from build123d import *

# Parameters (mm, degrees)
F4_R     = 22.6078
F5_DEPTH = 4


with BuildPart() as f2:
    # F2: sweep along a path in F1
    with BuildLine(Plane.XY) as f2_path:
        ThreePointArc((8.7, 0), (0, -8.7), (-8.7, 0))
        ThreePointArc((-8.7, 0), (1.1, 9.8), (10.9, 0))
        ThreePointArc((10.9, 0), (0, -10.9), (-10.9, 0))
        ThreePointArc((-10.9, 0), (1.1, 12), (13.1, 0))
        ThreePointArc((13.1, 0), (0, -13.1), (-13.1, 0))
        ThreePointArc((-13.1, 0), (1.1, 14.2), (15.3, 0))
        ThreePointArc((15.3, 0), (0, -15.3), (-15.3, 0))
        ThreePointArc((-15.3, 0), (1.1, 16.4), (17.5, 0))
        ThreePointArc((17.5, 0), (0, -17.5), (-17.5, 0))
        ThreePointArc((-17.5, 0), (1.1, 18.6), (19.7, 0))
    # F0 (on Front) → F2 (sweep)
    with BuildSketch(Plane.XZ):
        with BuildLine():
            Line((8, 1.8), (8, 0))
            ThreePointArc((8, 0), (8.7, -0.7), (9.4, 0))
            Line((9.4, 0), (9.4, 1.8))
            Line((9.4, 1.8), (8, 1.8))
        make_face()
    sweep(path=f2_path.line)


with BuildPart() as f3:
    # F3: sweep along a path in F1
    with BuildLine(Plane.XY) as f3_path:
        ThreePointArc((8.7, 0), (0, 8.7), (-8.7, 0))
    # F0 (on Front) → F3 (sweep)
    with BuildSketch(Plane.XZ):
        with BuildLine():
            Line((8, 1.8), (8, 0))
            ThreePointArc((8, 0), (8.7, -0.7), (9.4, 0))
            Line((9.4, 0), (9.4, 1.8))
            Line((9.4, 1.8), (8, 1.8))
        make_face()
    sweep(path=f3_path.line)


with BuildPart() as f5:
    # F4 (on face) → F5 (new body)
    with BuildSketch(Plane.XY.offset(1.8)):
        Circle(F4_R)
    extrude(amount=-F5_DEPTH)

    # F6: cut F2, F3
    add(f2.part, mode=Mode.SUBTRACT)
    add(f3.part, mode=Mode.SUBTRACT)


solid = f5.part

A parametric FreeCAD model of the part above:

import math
import FreeCAD as App
import Part
import Sketcher

V = App.Vector
Q = App.Units.Quantity

doc = App.newDocument("Part")
params = doc.addObject("Spreadsheet::Sheet", "Params")
for row, (alias, value) in enumerate([
    ("sketch1_radius", "0.7 mm"),
    ("sketch1_height", "1.8 mm"),
    ("sketch2_radius", "12 mm"),
    ("sketch2_radius2", "8.7 mm"),
    ("sketch3_radius", "0.7 mm"),
    ("sketch3_height", "1.8 mm"),
    ("sketch4_radius", "8.7 mm"),
    ("pad1_length", "4 mm"),
], start=1):
    params.set(f"A{row}", alias)
    params.set(f"B{row}", "=" + value)
    params.setAlias(f"B{row}", alias)

body = doc.addObject("PartDesign::Body", "Body")

# Sketch on XZ plane
sketch1 = body.newObject("Sketcher::SketchObject", "Sketch")
sketch1.AttachmentSupport = (doc.getObject("XZ_Plane"), [""])
sketch1.MapMode = "FlatFace"
sketch1.addGeometry([
    Part.LineSegment(V(8, 1.8, 0), V(8, 0, 0)),
    Part.ArcOfCircle(Part.Circle(V(8.7, 0, 0), V(0, 0, 1), 0.7), math.radians(180), math.radians(360)),
    Part.LineSegment(V(9.4, 0, 0), V(9.4, 1.8, 0)),
    Part.LineSegment(V(9.4, 1.8, 0), V(8, 1.8, 0)),
], False)
sketch1.addConstraint([
    Sketcher.Constraint("Tangent", 0, 2, 1, 1),
    Sketcher.Constraint("Tangent", 1, 2, 2, 1),
    Sketcher.Constraint("Coincident", 2, 2, 3, 1),
    Sketcher.Constraint("Coincident", 3, 2, 0, 1),
    Sketcher.Constraint("Vertical", 0),
    Sketcher.Constraint("Vertical", 2),
    Sketcher.Constraint("Horizontal", 3),
    Sketcher.Constraint("PointOnObject", 1, 3, -1),
    Sketcher.Constraint("Radius", 1, Q("0.7 mm")),
    Sketcher.Constraint("DistanceY", 0, 2, 0, 1, Q("1.8 mm")),
    Sketcher.Constraint("DistanceX", -1, 1, 0, 2, Q("8 mm")),
])
sketch1.setExpression("Constraints[8]", "Params.sketch1_radius")
sketch1.setExpression("Constraints[9]", "Params.sketch1_height")

# Sketch on XY plane
sketch2 = body.newObject("Sketcher::SketchObject", "Sketch001")
sketch2.AttachmentSupport = (doc.getObject("XY_Plane"), [""])
sketch2.MapMode = "FlatFace"
sketch2.addGeometry([
    Part.ArcOfCircle(Part.Circle(V(0, 0, 0), V(0, 0, 1), 9), math.radians(180), math.radians(360)),  # 0
    Part.ArcOfCircle(Part.Circle(V(1, 0, 0), V(0, 0, 1), 10), math.radians(0), math.radians(180)),  # 1
    Part.ArcOfCircle(Part.Circle(V(0, 0, 0), V(0, 0, 1), 11), math.radians(180), math.radians(360)),  # 2
    Part.ArcOfCircle(Part.Circle(V(1, 0, 0), V(0, 0, 1), 12), math.radians(0), math.radians(180)),  # 3
    Part.ArcOfCircle(Part.Circle(V(0, 0, 0), V(0, 0, 1), 13), math.radians(180), math.radians(360)),  # 4
    Part.ArcOfCircle(Part.Circle(V(1, 0, 0), V(0, 0, 1), 14), math.radians(0), math.radians(180)),  # 5
    Part.ArcOfCircle(Part.Circle(V(0, 0, 0), V(0, 0, 1), 15), math.radians(180), math.radians(360)),  # 6
    Part.ArcOfCircle(Part.Circle(V(1, 0, 0), V(0, 0, 1), 16), math.radians(0), math.radians(180)),  # 7
    Part.ArcOfCircle(Part.Circle(V(0, 0, 0), V(0, 0, 1), 18), math.radians(180), math.radians(360)),  # 8
    Part.ArcOfCircle(Part.Circle(V(1, 0, 0), V(0, 0, 1), 19), math.radians(0), math.radians(180)),  # 9
], False)
sketch2.addConstraint([
    Sketcher.Constraint("Tangent", 0, 1, 1, 2),
    Sketcher.Constraint("Tangent", 1, 1, 2, 2),
    Sketcher.Constraint("Tangent", 2, 1, 3, 2),
    Sketcher.Constraint("Tangent", 3, 1, 4, 2),
    Sketcher.Constraint("Tangent", 4, 1, 5, 2),
    Sketcher.Constraint("Tangent", 5, 1, 6, 2),
    Sketcher.Constraint("Tangent", 6, 1, 7, 2),
    Sketcher.Constraint("Tangent", 7, 1, 8, 2),
    Sketcher.Constraint("Tangent", 8, 1, 9, 2),
    Sketcher.Constraint("Coincident", 0, 3, -1, 1),
    Sketcher.Constraint("Coincident", 2, 3, -1, 1),
    Sketcher.Constraint("Coincident", 4, 3, -1, 1),
    Sketcher.Constraint("Coincident", 6, 3, -1, 1),
    Sketcher.Constraint("Coincident", 8, 3, -1, 1),
    Sketcher.Constraint("Coincident", 3, 3, 1, 3),
    Sketcher.Constraint("Coincident", 5, 3, 1, 3),
    Sketcher.Constraint("Coincident", 7, 3, 1, 3),
    Sketcher.Constraint("Coincident", 9, 3, 1, 3),
    Sketcher.Constraint("PointOnObject", 1, 3, -1),
    Sketcher.Constraint("PointOnObject", 0, 2, -1),
    Sketcher.Constraint("PointOnObject", 9, 1, -1),
    Sketcher.Constraint("Radius", 3, Q("12 mm")),
    Sketcher.Constraint("Radius", 0, Q("8.7 mm")),
])
sketch2.setExpression("Constraints[21]", "Params.sketch2_radius")
sketch2.setExpression("Constraints[22]", "Params.sketch2_radius2")
doc.recompute()

additivepipe = body.newObject("PartDesign::AdditivePipe", "AdditivePipe")
additivepipe.Profile = sketch1
additivepipe.Spine = (sketch2, ["Edge1", "Edge2", "Edge3", "Edge4", "Edge5", "Edge6", "Edge7", "Edge8", "Edge9", "Edge10"])
body2 = doc.addObject("PartDesign::Body", "Body001")

# Sketch on XZ plane
sketch3 = body2.newObject("Sketcher::SketchObject", "Sketch002")
sketch3.AttachmentSupport = (doc.getObject("XZ_Plane001"), [""])
sketch3.MapMode = "FlatFace"
sketch3.addGeometry([
    Part.LineSegment(V(8, 1.8, 0), V(8, 0, 0)),
    Part.ArcOfCircle(Part.Circle(V(8.7, 0, 0), V(0, 0, 1), 0.7), math.radians(180), math.radians(360)),
    Part.LineSegment(V(9.4, 0, 0), V(9.4, 1.8, 0)),
    Part.LineSegment(V(9.4, 1.8, 0), V(8, 1.8, 0)),
], False)
sketch3.addConstraint([
    Sketcher.Constraint("Tangent", 0, 2, 1, 1),
    Sketcher.Constraint("Tangent", 1, 2, 2, 1),
    Sketcher.Constraint("Coincident", 2, 2, 3, 1),
    Sketcher.Constraint("Coincident", 3, 2, 0, 1),
    Sketcher.Constraint("Vertical", 0),
    Sketcher.Constraint("Vertical", 2),
    Sketcher.Constraint("Horizontal", 3),
    Sketcher.Constraint("PointOnObject", 1, 3, -1),
    Sketcher.Constraint("Radius", 1, Q("0.7 mm")),
    Sketcher.Constraint("DistanceY", 0, 2, 0, 1, Q("1.8 mm")),
    Sketcher.Constraint("DistanceX", -1, 1, 0, 2, Q("8 mm")),
])
sketch3.setExpression("Constraints[8]", "Params.sketch3_radius")
sketch3.setExpression("Constraints[9]", "Params.sketch3_height")

# Sketch on XY plane
sketch4 = body2.newObject("Sketcher::SketchObject", "Sketch003")
sketch4.AttachmentSupport = (doc.getObject("XY_Plane001"), [""])
sketch4.MapMode = "FlatFace"
sketch4.addGeometry(Part.ArcOfCircle(Part.Circle(V(0, 0, 0), V(0, 0, 1), 9), math.radians(0), math.radians(180)), False)
sketch4.addConstraint([
    Sketcher.Constraint("Coincident", 0, 3, -1, 1),
    Sketcher.Constraint("PointOnObject", 0, 1, -1),
    Sketcher.Constraint("PointOnObject", 0, 2, -1),
    Sketcher.Constraint("Radius", 0, Q("8.7 mm")),
])
sketch4.setExpression("Constraints[3]", "Params.sketch4_radius")
doc.recompute()

additivepipe2 = body2.newObject("PartDesign::AdditivePipe", "AdditivePipe001")
additivepipe2.Profile = sketch3
additivepipe2.Spine = (sketch4, ["Edge1"])
body3 = doc.addObject("PartDesign::Body", "Body002")

# Sketch on XY plane
sketch5 = body3.newObject("Sketcher::SketchObject", "Sketch004")
sketch5.AttachmentSupport = (doc.getObject("XY_Plane002"), [""])
sketch5.MapMode = "FlatFace"
sketch5.AttachmentOffset = App.Placement(V(0, 0, 1.8), App.Rotation())
sketch5.addGeometry(Part.Circle(V(0, 0, 0), V(0, 0, 1), 23), False)
sketch5.addConstraint([
    Sketcher.Constraint("Coincident", 0, 3, -1, 1),
    Sketcher.Constraint("Diameter", 0, Q("45.2156 mm")),
])
pad1 = body3.newObject("PartDesign::Pad", "Pad")
pad1.Profile = sketch5
pad1.setExpression("Length", "Params.pad1_length")
pad1.Reversed = True
doc.recompute()

boolean = body3.newObject("PartDesign::Boolean", "Boolean")
boolean.Type = "Cut"
boolean.addObjects([body])
doc.recompute()

boolean2 = body3.newObject("PartDesign::Boolean", "Boolean001")
boolean2.Type = "Cut"
boolean2.addObjects([body2])

doc.recompute()
